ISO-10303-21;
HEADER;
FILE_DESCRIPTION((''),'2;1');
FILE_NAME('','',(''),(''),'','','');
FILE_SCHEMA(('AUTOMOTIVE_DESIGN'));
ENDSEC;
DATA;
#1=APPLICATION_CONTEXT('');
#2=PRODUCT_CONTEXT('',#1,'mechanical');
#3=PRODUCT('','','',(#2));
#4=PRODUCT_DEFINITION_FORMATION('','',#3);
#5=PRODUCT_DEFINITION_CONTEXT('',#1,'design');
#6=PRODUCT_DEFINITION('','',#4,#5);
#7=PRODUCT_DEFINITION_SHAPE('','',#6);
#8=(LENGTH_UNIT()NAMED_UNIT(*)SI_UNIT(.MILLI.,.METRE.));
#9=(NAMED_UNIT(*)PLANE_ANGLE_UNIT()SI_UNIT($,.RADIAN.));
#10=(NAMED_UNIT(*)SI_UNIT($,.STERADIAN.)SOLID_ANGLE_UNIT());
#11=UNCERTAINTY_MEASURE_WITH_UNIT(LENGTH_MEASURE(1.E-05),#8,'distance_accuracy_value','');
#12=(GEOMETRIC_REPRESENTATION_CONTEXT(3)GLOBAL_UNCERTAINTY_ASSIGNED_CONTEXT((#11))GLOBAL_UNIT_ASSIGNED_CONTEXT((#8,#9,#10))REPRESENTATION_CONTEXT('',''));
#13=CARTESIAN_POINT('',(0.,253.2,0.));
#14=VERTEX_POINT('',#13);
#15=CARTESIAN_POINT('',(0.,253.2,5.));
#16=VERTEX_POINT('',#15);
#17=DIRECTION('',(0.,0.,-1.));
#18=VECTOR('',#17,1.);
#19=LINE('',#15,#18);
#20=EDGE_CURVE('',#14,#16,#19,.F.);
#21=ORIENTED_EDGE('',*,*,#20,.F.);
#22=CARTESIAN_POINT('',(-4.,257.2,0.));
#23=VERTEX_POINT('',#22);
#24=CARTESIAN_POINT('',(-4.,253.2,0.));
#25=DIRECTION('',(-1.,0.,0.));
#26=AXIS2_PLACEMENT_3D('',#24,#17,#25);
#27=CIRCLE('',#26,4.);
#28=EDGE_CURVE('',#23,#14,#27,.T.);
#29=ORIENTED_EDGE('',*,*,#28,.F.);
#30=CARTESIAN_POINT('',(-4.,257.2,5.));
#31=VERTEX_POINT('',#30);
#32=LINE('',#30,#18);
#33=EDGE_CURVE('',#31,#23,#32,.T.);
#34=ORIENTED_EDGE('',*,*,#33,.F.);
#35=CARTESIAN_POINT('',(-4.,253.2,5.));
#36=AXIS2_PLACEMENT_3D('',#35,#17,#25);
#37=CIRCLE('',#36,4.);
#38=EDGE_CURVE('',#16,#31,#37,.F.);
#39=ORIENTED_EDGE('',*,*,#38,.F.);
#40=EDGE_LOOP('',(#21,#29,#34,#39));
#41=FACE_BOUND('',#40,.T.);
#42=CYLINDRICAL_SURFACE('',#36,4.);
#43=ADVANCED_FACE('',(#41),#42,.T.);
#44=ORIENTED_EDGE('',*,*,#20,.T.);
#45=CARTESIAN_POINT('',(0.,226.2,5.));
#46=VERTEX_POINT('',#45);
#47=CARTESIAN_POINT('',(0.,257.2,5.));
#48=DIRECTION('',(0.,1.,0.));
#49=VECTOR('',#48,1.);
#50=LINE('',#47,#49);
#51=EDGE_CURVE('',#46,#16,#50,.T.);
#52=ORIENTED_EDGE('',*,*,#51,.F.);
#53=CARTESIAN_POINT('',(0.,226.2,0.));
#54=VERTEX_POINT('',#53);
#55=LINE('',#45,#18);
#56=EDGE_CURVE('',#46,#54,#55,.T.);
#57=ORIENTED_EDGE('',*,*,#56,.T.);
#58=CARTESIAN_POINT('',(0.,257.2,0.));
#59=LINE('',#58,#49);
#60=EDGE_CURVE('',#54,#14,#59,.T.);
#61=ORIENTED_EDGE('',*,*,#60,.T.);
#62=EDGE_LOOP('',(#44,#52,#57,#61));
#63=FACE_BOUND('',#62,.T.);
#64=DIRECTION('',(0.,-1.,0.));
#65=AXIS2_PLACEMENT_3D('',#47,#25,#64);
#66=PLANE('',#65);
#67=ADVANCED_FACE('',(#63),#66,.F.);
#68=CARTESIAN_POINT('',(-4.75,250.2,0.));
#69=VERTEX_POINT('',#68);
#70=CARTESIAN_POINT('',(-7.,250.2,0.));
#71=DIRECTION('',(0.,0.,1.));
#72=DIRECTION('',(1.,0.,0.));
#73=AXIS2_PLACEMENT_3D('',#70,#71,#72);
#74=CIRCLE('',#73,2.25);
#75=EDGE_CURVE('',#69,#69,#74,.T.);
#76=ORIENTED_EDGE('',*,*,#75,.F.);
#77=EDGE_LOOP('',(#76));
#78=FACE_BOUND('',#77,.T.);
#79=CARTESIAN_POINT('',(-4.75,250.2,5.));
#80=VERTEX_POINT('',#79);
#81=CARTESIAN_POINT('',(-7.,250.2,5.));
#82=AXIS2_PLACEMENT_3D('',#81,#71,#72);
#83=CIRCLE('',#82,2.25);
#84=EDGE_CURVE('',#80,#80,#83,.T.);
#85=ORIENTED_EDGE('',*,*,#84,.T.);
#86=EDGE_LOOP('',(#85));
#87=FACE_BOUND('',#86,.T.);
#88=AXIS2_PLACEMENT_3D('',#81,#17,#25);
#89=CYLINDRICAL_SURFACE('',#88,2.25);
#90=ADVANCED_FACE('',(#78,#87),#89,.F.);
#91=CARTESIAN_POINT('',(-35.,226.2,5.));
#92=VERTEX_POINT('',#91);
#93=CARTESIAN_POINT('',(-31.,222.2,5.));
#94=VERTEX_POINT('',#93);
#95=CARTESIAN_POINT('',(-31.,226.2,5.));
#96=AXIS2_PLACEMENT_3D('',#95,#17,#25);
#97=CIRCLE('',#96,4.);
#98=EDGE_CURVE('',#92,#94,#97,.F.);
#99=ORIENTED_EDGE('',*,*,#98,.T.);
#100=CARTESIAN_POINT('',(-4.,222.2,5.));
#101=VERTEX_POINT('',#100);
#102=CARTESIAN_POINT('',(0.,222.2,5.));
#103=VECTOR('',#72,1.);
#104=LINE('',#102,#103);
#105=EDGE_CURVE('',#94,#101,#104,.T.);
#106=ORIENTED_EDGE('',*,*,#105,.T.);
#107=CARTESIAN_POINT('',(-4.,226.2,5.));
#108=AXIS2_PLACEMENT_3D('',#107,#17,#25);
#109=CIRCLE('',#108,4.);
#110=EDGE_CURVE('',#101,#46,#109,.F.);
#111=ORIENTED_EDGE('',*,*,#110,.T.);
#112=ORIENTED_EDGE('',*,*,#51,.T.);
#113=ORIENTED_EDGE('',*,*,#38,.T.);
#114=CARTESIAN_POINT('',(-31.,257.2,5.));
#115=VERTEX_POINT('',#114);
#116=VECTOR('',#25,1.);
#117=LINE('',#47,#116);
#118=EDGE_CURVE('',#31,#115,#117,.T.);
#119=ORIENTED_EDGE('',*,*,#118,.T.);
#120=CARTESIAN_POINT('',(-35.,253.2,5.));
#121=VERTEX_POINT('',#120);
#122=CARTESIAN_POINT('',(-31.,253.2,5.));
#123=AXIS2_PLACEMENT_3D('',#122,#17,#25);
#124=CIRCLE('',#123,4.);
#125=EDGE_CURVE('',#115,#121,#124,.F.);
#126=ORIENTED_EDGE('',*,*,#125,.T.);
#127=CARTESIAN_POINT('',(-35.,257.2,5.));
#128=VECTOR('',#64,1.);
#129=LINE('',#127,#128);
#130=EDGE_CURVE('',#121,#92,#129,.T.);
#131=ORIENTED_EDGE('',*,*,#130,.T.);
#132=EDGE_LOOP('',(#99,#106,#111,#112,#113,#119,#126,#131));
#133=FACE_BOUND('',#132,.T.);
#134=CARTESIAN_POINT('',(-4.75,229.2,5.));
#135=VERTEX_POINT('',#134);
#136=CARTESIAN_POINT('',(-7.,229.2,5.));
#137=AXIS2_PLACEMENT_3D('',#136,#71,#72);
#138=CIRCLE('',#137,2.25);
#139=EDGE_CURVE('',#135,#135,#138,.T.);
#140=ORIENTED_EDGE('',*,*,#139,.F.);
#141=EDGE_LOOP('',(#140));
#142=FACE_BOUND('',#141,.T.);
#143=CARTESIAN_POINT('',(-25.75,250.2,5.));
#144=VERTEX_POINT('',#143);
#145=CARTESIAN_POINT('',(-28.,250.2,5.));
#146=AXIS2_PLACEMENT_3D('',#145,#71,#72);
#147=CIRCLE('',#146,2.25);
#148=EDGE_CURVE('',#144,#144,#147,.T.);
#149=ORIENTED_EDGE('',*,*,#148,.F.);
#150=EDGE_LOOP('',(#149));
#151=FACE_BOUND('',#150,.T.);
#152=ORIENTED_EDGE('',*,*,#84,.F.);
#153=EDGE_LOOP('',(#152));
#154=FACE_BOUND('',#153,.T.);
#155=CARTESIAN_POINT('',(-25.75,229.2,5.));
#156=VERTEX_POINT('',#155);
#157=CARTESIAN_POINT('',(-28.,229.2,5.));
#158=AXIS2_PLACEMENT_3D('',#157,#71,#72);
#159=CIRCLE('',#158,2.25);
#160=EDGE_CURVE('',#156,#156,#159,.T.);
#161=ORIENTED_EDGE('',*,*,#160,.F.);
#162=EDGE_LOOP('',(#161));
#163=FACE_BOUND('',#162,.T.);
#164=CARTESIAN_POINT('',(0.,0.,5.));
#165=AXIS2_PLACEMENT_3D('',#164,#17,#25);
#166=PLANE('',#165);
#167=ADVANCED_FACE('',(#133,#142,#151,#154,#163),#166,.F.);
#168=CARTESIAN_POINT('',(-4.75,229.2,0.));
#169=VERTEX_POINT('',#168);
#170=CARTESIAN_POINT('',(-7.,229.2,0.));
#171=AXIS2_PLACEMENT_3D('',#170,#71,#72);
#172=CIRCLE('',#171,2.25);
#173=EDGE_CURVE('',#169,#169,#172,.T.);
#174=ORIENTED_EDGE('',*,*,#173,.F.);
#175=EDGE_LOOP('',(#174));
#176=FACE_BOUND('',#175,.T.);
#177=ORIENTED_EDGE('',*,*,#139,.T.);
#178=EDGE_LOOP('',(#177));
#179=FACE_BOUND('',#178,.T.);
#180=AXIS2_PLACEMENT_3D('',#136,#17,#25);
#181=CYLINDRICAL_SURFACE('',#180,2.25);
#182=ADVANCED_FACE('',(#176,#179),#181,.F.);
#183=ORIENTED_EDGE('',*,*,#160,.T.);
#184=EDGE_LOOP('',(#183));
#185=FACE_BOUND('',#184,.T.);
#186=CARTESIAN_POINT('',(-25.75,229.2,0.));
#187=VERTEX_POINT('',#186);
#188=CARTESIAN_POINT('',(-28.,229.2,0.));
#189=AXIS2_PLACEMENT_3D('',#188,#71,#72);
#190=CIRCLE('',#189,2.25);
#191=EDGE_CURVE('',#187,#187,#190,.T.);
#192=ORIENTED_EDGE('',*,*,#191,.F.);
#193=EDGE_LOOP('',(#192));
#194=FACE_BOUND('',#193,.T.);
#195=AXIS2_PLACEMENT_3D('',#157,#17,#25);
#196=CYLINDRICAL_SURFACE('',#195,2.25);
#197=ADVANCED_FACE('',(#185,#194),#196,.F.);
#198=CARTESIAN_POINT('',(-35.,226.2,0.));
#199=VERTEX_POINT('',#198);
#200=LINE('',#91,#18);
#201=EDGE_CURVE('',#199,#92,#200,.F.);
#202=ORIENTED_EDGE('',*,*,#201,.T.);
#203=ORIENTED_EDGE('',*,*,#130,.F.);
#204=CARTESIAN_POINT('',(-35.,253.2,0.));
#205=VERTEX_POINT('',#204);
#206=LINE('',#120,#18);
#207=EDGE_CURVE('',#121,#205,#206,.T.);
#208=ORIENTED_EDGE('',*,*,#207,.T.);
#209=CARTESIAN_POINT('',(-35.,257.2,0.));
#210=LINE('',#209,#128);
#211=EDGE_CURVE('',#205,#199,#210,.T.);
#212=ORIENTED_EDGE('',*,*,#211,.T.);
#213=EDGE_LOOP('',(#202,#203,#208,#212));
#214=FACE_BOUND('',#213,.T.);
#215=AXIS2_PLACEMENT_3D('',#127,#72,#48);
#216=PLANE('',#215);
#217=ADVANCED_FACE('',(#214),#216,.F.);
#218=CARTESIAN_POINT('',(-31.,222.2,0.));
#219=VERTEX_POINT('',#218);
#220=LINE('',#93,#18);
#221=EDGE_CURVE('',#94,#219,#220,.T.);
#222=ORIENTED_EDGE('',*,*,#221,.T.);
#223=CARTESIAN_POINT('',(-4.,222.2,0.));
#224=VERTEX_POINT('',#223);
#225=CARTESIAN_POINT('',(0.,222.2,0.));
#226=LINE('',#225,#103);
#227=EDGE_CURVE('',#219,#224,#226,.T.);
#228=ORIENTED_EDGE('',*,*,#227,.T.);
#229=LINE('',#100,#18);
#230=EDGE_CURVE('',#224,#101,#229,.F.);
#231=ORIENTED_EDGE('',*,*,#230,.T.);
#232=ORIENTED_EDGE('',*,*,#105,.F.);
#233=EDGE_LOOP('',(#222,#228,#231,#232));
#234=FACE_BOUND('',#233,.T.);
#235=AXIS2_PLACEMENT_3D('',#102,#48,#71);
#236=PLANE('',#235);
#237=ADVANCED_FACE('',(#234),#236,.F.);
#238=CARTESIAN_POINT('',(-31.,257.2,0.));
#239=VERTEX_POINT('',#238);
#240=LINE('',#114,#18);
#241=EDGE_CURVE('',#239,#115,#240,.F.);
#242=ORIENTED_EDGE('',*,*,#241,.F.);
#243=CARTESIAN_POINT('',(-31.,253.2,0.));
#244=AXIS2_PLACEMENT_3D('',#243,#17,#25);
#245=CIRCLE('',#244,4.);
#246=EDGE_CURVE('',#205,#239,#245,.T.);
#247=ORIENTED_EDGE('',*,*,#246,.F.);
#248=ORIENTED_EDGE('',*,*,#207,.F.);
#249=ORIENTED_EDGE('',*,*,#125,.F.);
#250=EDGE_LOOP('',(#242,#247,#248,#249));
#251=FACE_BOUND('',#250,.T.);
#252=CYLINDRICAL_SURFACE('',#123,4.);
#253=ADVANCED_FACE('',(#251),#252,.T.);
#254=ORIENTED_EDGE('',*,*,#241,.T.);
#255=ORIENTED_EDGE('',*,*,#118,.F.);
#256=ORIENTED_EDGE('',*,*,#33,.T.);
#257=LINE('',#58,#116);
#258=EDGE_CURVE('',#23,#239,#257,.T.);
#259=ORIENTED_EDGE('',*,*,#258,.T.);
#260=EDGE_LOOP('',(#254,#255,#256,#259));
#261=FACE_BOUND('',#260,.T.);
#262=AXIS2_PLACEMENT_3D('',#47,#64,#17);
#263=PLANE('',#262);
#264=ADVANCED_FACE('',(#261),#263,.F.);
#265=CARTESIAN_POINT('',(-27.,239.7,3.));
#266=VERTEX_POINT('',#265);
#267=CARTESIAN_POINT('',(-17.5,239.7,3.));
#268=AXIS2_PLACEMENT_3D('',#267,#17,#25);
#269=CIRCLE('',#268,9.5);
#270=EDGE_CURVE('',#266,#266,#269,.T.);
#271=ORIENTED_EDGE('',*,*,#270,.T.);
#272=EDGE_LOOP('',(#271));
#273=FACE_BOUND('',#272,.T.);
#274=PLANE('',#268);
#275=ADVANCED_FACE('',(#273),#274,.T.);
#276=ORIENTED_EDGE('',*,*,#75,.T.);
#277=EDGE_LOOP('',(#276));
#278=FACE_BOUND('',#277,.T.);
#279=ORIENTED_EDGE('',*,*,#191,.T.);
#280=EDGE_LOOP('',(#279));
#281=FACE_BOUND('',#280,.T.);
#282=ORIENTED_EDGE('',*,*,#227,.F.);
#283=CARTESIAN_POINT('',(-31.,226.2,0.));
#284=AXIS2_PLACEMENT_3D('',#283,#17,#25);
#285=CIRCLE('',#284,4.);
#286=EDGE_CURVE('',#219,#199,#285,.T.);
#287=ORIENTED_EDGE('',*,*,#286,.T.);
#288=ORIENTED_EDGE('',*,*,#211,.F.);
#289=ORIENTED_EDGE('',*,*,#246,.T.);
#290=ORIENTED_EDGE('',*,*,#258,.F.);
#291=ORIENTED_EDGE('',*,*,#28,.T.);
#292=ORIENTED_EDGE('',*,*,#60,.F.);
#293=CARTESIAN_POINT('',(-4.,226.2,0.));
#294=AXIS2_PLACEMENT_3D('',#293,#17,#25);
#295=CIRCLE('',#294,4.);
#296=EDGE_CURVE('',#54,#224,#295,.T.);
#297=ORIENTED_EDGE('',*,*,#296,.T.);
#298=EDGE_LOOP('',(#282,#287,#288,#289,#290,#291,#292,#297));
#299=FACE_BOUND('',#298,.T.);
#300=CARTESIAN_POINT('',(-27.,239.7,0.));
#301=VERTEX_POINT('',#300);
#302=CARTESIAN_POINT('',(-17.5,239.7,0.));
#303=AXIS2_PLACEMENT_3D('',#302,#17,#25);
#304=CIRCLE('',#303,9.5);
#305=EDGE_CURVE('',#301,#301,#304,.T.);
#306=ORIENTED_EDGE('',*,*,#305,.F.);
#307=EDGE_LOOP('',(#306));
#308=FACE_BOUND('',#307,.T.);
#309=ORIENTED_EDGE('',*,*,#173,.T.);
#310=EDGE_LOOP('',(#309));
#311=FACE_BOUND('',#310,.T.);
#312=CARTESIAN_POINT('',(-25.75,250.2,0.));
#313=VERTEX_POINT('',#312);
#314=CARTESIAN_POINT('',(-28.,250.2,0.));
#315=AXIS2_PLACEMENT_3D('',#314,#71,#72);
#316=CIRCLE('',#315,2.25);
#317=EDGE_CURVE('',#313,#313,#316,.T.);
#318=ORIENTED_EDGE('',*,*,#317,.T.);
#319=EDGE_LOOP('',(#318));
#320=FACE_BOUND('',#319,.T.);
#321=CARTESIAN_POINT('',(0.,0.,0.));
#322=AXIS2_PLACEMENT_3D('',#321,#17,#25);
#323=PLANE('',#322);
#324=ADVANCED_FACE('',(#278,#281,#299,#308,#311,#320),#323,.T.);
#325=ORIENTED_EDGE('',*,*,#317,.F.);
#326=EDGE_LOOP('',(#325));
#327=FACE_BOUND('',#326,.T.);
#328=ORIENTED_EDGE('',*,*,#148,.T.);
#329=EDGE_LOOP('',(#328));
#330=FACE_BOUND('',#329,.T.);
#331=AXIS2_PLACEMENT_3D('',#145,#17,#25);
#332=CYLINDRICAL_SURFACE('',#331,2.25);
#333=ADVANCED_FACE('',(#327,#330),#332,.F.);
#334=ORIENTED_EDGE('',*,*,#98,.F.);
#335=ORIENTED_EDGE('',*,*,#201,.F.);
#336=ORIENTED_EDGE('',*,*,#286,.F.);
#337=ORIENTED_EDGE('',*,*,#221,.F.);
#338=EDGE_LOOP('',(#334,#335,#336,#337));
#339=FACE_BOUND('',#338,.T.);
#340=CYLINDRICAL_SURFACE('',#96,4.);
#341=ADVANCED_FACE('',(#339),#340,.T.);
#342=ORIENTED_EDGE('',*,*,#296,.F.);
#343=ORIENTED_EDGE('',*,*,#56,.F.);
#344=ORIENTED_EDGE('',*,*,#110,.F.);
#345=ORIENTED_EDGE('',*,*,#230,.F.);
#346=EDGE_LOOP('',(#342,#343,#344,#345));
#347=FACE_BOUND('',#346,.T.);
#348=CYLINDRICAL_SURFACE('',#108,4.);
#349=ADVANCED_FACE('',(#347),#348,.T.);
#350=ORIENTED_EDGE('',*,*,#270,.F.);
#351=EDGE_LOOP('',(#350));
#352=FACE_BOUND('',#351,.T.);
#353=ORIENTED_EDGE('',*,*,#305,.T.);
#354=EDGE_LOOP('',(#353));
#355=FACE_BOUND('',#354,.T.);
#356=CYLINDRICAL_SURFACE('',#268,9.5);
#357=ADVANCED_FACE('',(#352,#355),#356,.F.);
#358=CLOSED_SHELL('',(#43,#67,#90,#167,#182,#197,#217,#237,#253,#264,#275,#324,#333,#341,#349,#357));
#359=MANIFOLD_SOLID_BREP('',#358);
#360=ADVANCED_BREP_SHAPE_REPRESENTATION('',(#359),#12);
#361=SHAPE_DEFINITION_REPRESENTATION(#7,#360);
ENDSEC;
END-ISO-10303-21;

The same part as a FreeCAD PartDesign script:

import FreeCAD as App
import Part
import Sketcher
from FreeCAD import Vector
Q = App.Units.Quantity


def edges_at(feature, points):
    """Names of the edges that pass closest to the given points."""
    edges = feature.Shape.Edges
    near = lambda p: min(range(len(edges)), key=lambda i: edges[i].distToShape(Part.Vertex(*p))[0])
    return sorted({f"Edge{near(p) + 1}" for p in points})

doc = App.newDocument("Part")
body = doc.addObject("PartDesign::Body", "Body")

# Sketch on XY plane
sketch1 = body.newObject("Sketcher::SketchObject", "Sketch")
sketch1.AttachmentSupport = (doc.getObject("XY_Plane"), [""])
sketch1.MapMode = "FlatFace"
sketch1.addGeometry(Part.LineSegment(Vector(-35, 257.2, 0), Vector(-35, 222.2, 0)), False)
sketch1.addGeometry(Part.LineSegment(Vector(-35, 222.2, 0), Vector(0, 222.2, 0)), False)
sketch1.addGeometry(Part.LineSegment(Vector(0, 222.2, 0), Vector(0, 257.2, 0)), False)
sketch1.addGeometry(Part.LineSegment(Vector(0, 257.2, 0), Vector(-35, 257.2, 0)), False)
sketch1.addGeometry(Part.Circle(Vector(-28, 229.2, 0), Vector(0, 0, 1), 2.25), False)
sketch1.addGeometry(Part.Circle(Vector(-7, 229.2, 0), Vector(0, 0, 1), 2.25), False)
sketch1.addGeometry(Part.Circle(Vector(-28, 250.2, 0), Vector(0, 0, 1), 2.25), False)
sketch1.addGeometry(Part.Circle(Vector(-7, 250.2, 0), Vector(0, 0, 1), 2.25), False)
sketch1.addConstraint(Sketcher.Constraint("Coincident", 0, 2, 1, 1))
sketch1.addConstraint(Sketcher.Constraint("Coincident", 1, 2, 2, 1))
sketch1.addConstraint(Sketcher.Constraint("Coincident", 2, 2, 3, 1))
sketch1.addConstraint(Sketcher.Constraint("Coincident", 3, 2, 0, 1))
sketch1.addConstraint(Sketcher.Constraint("Vertical", 0))
sketch1.addConstraint(Sketcher.Constraint("Horizontal", 1))
sketch1.addConstraint(Sketcher.Constraint("Vertical", 2))
sketch1.addConstraint(Sketcher.Constraint("Horizontal", 3))
sketch1.addConstraint(Sketcher.Constraint("Equal", 4, 5))
sketch1.addConstraint(Sketcher.Constraint("Equal", 5, 6))
sketch1.addConstraint(Sketcher.Constraint("Equal", 6, 7))
sketch1.addConstraint(Sketcher.Constraint("PointOnObject", 1, 2, -2))
sketch1.addConstraint(Sketcher.Constraint("Horizontal", 4, 3, 5, 3))
sketch1.addConstraint(Sketcher.Constraint("Horizontal", 6, 3, 7, 3))
sketch1.addConstraint(Sketcher.Constraint("Vertical", 4, 3, 6, 3))
sketch1.addConstraint(Sketcher.Constraint("Vertical", 5, 3, 7, 3))
sketch1.addConstraint(Sketcher.Constraint("Equal", 3, 0))
sketch1.addConstraint(Sketcher.Constraint("Diameter", 4, Q("4.5 mm")))
sketch1.addConstraint(Sketcher.Constraint("DistanceX", 1, 1, 1, 2, Q("35 mm")))
sketch1.addConstraint(Sketcher.Constraint("DistanceX", 4, 3, -1, 1, Q("28 mm")))
sketch1.addConstraint(Sketcher.Constraint("DistanceX", 5, 3, -1, 1, Q("7 mm")))
sketch1.addConstraint(Sketcher.Constraint("DistanceY", 4, 3, 6, 3, Q("21 mm")))
sketch1.addConstraint(Sketcher.Constraint("DistanceY", 0, 2, 4, 3, Q("7 mm")))
sketch1.addConstraint(Sketcher.Constraint("DistanceY", -1, 1, 4, 3, Q("229.2 mm")))
pad1 = body.newObject("PartDesign::Pad", "Pad")
pad1.Profile = sketch1
pad1.Length = 5
doc.recompute()

fillet = body.newObject("PartDesign::Fillet", "Fillet")
fillet.Base = (pad1, edges_at(pad1, [
    (0, 222.2, 2.5),
    (-35, 222.2, 2.5),
    (-35, 257.2, 2.5),
    (0, 257.2, 2.5),
]))
fillet.Radius = 4

# Sketch on XY plane
sketch2 = body.newObject("Sketcher::SketchObject", "Sketch001")
sketch2.AttachmentSupport = (doc.getObject("XY_Plane"), [""])
sketch2.MapMode = "FlatFace"
sketch2.addGeometry(Part.Circle(Vector(-17.5, 239.7, 0), Vector(0, 0, 1), 9.5), False)
sketch2.addConstraint(Sketcher.Constraint("Diameter", 0, Q("19 mm")))
sketch2.addConstraint(Sketcher.Constraint("DistanceX", 0, 3, -1, 1, Q("17.5 mm")))
sketch2.addConstraint(Sketcher.Constraint("DistanceY", -1, 1, 0, 3, Q("239.7 mm")))
pocket1 = body.newObject("PartDesign::Pocket", "Pocket")
pocket1.Profile = sketch2
pocket1.Length = 3
pocket1.Reversed = True

doc.recompute()
